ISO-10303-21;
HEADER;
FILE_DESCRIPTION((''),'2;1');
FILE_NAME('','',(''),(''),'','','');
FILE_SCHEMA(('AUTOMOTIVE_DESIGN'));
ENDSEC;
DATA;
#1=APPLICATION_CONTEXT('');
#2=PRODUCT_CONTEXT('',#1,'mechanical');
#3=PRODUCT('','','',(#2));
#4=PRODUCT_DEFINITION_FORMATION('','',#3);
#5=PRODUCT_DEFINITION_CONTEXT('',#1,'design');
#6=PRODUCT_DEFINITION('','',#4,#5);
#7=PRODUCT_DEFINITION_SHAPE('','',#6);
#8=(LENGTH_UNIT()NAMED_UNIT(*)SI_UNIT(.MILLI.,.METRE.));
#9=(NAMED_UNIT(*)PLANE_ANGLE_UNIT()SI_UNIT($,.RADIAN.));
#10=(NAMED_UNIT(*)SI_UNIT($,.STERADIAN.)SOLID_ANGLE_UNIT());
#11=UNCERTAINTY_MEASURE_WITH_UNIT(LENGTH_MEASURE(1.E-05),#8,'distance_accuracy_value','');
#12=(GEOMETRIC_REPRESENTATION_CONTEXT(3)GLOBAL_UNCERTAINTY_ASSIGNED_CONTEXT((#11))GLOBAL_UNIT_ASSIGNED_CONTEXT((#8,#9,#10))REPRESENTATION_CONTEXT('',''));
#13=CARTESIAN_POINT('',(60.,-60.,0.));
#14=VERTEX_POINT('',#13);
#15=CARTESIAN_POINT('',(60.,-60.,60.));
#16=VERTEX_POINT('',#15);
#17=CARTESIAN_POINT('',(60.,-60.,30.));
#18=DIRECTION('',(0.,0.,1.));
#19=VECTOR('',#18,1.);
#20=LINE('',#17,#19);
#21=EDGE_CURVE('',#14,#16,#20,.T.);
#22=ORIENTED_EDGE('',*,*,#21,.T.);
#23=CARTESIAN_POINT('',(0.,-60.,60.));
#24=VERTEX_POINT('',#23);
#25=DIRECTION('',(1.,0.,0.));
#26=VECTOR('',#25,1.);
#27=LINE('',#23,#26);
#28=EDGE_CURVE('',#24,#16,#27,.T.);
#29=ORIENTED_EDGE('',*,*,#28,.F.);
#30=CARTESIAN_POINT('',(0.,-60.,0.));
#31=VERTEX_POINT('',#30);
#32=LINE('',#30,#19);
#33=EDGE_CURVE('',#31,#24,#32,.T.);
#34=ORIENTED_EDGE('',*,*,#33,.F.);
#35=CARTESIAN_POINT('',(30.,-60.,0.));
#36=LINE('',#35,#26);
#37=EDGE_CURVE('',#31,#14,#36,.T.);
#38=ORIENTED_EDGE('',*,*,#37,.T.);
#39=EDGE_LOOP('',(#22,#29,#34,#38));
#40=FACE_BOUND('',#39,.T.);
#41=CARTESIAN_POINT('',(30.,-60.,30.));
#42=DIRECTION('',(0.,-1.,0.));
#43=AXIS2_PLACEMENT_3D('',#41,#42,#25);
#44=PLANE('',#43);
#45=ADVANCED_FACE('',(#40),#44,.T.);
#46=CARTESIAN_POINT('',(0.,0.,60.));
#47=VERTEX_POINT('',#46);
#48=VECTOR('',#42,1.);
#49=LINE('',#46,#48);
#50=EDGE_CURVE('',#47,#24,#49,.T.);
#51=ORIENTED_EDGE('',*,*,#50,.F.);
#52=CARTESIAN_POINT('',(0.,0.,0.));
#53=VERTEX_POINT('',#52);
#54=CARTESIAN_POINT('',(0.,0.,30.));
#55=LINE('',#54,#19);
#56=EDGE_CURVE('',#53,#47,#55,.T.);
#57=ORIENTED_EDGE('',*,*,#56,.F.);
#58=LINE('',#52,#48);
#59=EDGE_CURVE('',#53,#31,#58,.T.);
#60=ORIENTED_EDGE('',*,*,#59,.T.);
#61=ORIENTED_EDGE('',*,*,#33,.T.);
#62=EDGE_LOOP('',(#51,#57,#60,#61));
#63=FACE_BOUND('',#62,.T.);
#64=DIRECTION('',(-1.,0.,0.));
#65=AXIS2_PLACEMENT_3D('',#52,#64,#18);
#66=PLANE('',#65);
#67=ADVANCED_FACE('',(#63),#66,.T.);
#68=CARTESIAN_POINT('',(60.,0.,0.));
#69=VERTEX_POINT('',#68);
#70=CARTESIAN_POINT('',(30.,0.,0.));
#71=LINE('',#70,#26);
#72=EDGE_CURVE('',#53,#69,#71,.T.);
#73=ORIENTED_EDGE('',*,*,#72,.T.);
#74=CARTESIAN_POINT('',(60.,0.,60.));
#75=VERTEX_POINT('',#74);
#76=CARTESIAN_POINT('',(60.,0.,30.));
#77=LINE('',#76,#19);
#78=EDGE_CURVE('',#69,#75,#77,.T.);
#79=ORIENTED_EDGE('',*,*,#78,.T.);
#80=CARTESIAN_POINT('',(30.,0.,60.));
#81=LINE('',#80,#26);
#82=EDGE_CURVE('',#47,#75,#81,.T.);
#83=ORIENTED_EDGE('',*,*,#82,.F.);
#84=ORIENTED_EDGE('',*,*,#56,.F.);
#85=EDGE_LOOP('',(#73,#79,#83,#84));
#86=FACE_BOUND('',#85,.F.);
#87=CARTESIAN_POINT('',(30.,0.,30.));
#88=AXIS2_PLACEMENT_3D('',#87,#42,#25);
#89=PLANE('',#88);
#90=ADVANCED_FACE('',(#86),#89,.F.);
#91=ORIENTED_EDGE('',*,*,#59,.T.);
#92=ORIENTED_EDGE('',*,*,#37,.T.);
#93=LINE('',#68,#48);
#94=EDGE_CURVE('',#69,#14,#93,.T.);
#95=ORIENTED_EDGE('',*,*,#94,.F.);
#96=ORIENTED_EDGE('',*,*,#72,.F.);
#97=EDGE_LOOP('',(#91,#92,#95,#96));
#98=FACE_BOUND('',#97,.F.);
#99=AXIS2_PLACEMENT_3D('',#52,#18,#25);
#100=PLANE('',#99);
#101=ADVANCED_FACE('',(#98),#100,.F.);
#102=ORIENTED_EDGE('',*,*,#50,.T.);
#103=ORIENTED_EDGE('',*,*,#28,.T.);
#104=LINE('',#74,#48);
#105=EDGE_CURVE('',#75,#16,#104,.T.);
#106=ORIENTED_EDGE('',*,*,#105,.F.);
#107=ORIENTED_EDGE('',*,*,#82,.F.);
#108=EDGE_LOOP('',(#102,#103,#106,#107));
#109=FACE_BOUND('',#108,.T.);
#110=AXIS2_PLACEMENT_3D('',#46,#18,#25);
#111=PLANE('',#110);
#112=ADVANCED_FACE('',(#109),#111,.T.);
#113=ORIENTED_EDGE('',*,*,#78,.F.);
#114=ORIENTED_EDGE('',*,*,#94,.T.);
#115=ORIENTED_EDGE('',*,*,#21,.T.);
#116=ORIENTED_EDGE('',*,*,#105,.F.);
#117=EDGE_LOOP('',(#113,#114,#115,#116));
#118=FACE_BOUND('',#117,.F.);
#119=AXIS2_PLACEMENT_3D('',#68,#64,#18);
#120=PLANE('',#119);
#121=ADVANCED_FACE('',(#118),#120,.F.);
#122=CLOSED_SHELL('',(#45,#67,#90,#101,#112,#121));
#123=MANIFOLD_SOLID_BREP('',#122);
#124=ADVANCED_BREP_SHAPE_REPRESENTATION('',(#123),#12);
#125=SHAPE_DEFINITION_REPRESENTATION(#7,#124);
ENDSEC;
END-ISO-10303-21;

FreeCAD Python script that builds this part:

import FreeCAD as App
import Part
import Sketcher

V = App.Vector

doc = App.newDocument("Part")
params = doc.addObject("Spreadsheet::Sheet", "Params")
for row, (alias, value) in enumerate([
    ("sketch1_width", "60 mm"),
    ("pad1_length", "60 mm"),
    ("sketch2_width", "30 mm"),
    ("pocket1_length", "56.42514 mm"),
], start=1):
    params.set(f"A{row}", alias)
    params.set(f"B{row}", "=" + value)
    params.setAlias(f"B{row}", alias)

body = doc.addObject("PartDesign::Body", "Body")

# Sketch on XZ plane
sketch1 = body.newObject("Sketcher::SketchObject", "Sketch")
sketch1.AttachmentSupport = (doc.getObject("XZ_Plane"), [""])
sketch1.MapMode = "FlatFace"
sketch1.addGeometry([
    Part.LineSegment(V(0, 60, 0), V(0, 0, 0)),
    Part.LineSegment(V(0, 0, 0), V(60, 0, 0)),
    Part.LineSegment(V(60, 0, 0), V(60, 60, 0)),
    Part.LineSegment(V(60, 60, 0), V(0, 60, 0)),
], False)
sketch1.addConstraint([
    Sketcher.Constraint("Coincident", 0, 2, 1, 1),
    Sketcher.Constraint("Coincident", 1, 2, 2, 1),
    Sketcher.Constraint("Coincident", 2, 2, 3, 1),
    Sketcher.Constraint("Coincident", 3, 2, 0, 1),
    Sketcher.Constraint("Vertical", 0),
    Sketcher.Constraint("Horizontal", 1),
    Sketcher.Constraint("Vertical", 2),
    Sketcher.Constraint("Horizontal", 3),
    Sketcher.Constraint("Coincident", 0, 2, -1, 1),
    Sketcher.Constraint("Equal", 3, 0),
    Sketcher.Constraint("DistanceX", 1, 1, 1, 2, 60.0),
])
sketch1.setExpression("Constraints[10]", "Params.sketch1_width")
pad1 = body.newObject("PartDesign::Pad", "Pad")
pad1.Profile = sketch1
pad1.setExpression("Length", "Params.pad1_length")

# Sketch on XZ plane
sketch2 = body.newObject("Sketcher::SketchObject", "Sketch001")
sketch2.AttachmentSupport = (doc.getObject("XZ_Plane"), [""])
sketch2.MapMode = "FlatFace"
sketch2.AttachmentOffset = App.Placement(V(0, 0, 60), App.Rotation())
sketch2.addGeometry([
    Part.LineSegment(V(0, 38, 0), V(31, 38, 0)),
    Part.LineSegment(V(31, 38, 0), V(30, 60, 0)),
    Part.LineSegment(V(30, 60, 0), V(0, 60, 0)),
    Part.LineSegment(V(0, 60, 0), V(0, 38, 0)),
], False)
sketch2.addConstraint([
    Sketcher.Constraint("Coincident", 0, 2, 1, 1),
    Sketcher.Constraint("Coincident", 1, 2, 2, 1),
    Sketcher.Constraint("Coincident", 2, 2, 3, 1),
    Sketcher.Constraint("Coincident", 3, 2, 0, 1),
    Sketcher.Constraint("Horizontal", 0),
    Sketcher.Constraint("Horizontal", 2),
    Sketcher.Constraint("Vertical", 3),
    Sketcher.Constraint("PointOnObject", 2, 2, -2),
    Sketcher.Constraint("DistanceX", 2, 2, 2, 1, 30.0),
    Sketcher.Constraint("DistanceY", -1, 1, 1, 2, 60.0),
    Sketcher.Constraint("DistanceY", 3, 2, 3, 1, 22.040038),
    Sketcher.Constraint("DistanceX", 0, 1, 0, 2, 30.673204),
])
sketch2.setExpression("Constraints[8]", "Params.sketch2_width")
pocket1 = body.newObject("PartDesign::Pocket", "Pocket")
pocket1.Profile = sketch2
pocket1.setExpression("Length", "Params.pocket1_length")
pocket1.Reversed = True

doc.recompute()
